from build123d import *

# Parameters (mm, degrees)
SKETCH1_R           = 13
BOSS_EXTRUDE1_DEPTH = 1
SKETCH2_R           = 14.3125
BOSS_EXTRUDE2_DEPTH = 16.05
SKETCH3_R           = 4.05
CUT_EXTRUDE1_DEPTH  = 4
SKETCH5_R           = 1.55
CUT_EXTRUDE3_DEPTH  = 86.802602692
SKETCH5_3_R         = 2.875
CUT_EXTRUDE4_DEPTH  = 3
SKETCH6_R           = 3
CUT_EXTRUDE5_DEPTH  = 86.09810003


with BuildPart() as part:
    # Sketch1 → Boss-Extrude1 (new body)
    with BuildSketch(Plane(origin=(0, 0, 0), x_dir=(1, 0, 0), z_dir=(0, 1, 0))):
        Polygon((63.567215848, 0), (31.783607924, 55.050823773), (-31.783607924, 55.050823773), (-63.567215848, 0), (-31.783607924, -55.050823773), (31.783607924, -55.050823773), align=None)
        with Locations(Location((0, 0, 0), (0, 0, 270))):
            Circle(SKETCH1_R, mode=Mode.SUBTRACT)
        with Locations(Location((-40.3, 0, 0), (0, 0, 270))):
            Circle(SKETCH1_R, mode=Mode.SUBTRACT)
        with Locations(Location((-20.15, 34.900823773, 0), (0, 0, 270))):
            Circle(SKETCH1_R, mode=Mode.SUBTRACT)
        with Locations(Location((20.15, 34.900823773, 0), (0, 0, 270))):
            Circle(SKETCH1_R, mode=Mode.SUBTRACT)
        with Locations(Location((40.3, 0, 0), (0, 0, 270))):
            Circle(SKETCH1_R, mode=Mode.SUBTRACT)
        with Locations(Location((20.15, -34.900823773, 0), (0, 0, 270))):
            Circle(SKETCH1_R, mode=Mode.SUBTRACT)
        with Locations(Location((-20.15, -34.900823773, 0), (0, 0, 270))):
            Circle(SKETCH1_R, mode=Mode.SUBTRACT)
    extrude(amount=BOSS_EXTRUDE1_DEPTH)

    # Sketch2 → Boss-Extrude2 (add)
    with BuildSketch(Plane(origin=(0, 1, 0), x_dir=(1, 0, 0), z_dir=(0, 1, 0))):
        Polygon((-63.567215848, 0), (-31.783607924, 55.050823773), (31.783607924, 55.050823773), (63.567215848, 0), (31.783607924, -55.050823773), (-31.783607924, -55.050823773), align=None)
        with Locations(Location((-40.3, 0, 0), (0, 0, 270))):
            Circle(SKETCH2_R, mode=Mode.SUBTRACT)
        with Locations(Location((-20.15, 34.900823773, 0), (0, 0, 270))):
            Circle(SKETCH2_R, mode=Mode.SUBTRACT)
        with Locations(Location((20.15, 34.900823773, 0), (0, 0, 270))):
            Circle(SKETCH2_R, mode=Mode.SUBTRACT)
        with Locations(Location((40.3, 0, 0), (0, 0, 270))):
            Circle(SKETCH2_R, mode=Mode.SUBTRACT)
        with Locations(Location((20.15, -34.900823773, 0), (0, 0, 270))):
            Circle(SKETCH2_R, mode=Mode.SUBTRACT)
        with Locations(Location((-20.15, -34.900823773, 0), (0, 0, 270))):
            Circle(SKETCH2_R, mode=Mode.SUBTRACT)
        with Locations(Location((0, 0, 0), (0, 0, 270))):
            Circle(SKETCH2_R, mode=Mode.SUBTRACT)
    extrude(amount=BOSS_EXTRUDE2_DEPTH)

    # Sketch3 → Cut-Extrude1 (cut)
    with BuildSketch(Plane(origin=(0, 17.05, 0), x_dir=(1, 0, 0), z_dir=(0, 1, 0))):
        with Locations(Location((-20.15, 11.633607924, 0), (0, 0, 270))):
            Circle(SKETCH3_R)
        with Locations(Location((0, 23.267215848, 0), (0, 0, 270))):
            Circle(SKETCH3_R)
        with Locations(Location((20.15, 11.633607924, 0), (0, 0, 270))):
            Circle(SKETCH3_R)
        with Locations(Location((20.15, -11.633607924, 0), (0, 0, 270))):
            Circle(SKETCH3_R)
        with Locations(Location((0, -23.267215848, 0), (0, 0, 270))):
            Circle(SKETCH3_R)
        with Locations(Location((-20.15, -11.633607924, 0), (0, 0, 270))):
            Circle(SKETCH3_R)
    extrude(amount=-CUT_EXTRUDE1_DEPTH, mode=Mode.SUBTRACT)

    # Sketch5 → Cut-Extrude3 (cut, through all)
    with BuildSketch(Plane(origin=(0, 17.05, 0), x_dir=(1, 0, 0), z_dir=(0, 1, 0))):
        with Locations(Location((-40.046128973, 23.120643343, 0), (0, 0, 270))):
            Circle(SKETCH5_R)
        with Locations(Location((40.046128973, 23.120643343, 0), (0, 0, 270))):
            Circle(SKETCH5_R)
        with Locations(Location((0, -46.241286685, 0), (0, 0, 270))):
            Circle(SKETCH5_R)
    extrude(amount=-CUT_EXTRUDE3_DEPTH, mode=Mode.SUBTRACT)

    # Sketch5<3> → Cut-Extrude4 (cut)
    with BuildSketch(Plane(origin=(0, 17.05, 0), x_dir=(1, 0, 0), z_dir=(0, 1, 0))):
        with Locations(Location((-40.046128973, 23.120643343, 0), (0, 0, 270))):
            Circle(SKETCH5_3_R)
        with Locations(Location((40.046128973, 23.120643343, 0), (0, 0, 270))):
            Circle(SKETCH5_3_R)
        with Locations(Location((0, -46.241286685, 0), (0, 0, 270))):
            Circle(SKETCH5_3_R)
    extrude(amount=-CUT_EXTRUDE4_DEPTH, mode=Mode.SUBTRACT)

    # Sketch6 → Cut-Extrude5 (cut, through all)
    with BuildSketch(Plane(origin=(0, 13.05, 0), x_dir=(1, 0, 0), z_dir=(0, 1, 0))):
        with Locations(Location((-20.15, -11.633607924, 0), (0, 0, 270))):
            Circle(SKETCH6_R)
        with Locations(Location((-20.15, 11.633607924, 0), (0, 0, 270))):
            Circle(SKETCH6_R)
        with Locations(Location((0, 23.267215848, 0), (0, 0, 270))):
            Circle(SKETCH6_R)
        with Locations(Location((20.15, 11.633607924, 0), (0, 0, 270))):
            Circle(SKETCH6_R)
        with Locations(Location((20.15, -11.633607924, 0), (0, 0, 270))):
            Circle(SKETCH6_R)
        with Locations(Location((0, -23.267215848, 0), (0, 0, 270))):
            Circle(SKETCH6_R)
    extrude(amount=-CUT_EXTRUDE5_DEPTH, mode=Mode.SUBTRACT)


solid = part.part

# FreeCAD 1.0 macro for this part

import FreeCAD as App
import Part
import Sketcher
Q = App.Units.Quantity


def add_polygon(sketch, points):
    """Adds a closed chain of lines whose ends are joined by coincident constraints."""
    first, n = sketch.GeometryCount, len(points)
    for a, b in zip(points, points[1:] + points[:1]):
        sketch.addGeometry(Part.LineSegment(App.Vector(*a, 0), App.Vector(*b, 0)), False)
    for i in range(n):
        sketch.addConstraint(Sketcher.Constraint("Coincident", first + i, 2, first + (i + 1) % n, 1))

doc = App.newDocument("Part")
body = doc.addObject("PartDesign::Body", "Body")

# Sketch on XZ plane
sketch1 = body.newObject("Sketcher::SketchObject", "Sketch")
sketch1.AttachmentSupport = (doc.getObject("XZ_Plane"), [""])
sketch1.MapMode = "FlatFace"
add_polygon(sketch1, [(64, 0), (32, -55), (-32, -55), (-64, 0), (-32, 55), (32, 55)])  # lines 0-5
sketch1.addGeometry(Part.Circle(App.Vector(-20, 35, 0), App.Vector(0, 0, 1), 13), False)  # 6
sketch1.addGeometry(Part.Circle(App.Vector(20, 35, 0), App.Vector(0, 0, 1), 13), False)  # 7
sketch1.addGeometry(Part.Circle(App.Vector(-40, 0, 0), App.Vector(0, 0, 1), 13), False)  # 8
sketch1.addGeometry(Part.Circle(App.Vector(-20, -35, 0), App.Vector(0, 0, 1), 13), False)  # 9
sketch1.addGeometry(Part.Circle(App.Vector(0, 0, 0), App.Vector(0, 0, 1), 13), False)  # 10
sketch1.addGeometry(Part.Circle(App.Vector(40, 0, 0), App.Vector(0, 0, 1), 13), False)  # 11
sketch1.addGeometry(Part.Circle(App.Vector(20, -35, 0), App.Vector(0, 0, 1), 13), False)  # 12
sketch1.addConstraint([
    Sketcher.Constraint("Horizontal", 1),
    Sketcher.Constraint("Horizontal", 4),
    Sketcher.Constraint("Coincident", 10, 3, -1, 1),
    Sketcher.Constraint("Equal", 6, 7),
    Sketcher.Constraint("Equal", 7, 8),
    Sketcher.Constraint("Equal", 8, 9),
    Sketcher.Constraint("Equal", 9, 10),
    Sketcher.Constraint("Equal", 10, 11),
    Sketcher.Constraint("Equal", 11, 12),
    Sketcher.Constraint("Symmetric", 7, 3, 9, 3, -1, 1),
    Sketcher.Constraint("Symmetric", 8, 3, 11, 3, -1, 1),
    Sketcher.Constraint("Symmetric", 6, 3, 12, 3, -1, 1),
    Sketcher.Constraint("Symmetric", 0, 2, 3, 2, -1, 1),
    Sketcher.Constraint("Symmetric", 2, 2, 5, 2, -1, 1),
    Sketcher.Constraint("Symmetric", 6, 3, 7, 3, -2),
    Sketcher.Constraint("PointOnObject", 8, 3, -1),
    Sketcher.Constraint("PointOnObject", 2, 2, -1),
    Sketcher.Constraint("Parallel", 2, 5),
    Sketcher.Constraint("Vertical", 1, 2, 3, 2),
    Sketcher.Constraint("Diameter", 6, Q("26 mm")),
    Sketcher.Constraint("Angle", 0, Q("-120 deg")),
    Sketcher.Constraint("DistanceX", 8, 3, -1, 1, Q("40.3 mm")),
    Sketcher.Constraint("DistanceX", 6, 3, 7, 3, Q("40.3 mm")),
    Sketcher.Constraint("DistanceY", 0, 2, 12, 3, Q("20.15 mm")),
    Sketcher.Constraint("DistanceX", 1, 2, 1, 1, Q("63.567216 mm")),
    Sketcher.Constraint("Distance", 0, Q("63.567216 mm")),
])
pad1 = body.newObject("PartDesign::Pad", "Pad")
pad1.Profile = sketch1
pad1.Length = 1
pad1.Reversed = True

# Sketch on XZ plane
sketch2 = body.newObject("Sketcher::SketchObject", "Sketch001")
sketch2.AttachmentSupport = (doc.getObject("XZ_Plane"), [""])
sketch2.MapMode = "FlatFace"
sketch2.AttachmentOffset = App.Placement(App.Vector(0, 0, -1), App.Rotation())
add_polygon(sketch2, [(-32, -55), (-64, 0), (-32, 55), (32, 55), (64, 0), (32, -55)])  # lines 0-5
sketch2.addGeometry(Part.Circle(App.Vector(20, 35, 0), App.Vector(0, 0, 1), 14), False)  # 6
sketch2.addGeometry(Part.Circle(App.Vector(40, 0, 0), App.Vector(0, 0, 1), 14), False)  # 7
sketch2.addGeometry(Part.Circle(App.Vector(-20, 35, 0), App.Vector(0, 0, 1), 14), False)  # 8
sketch2.addGeometry(Part.Circle(App.Vector(0, 0, 0), App.Vector(0, 0, 1), 14), False)  # 9
sketch2.addGeometry(Part.Circle(App.Vector(-40, 0, 0), App.Vector(0, 0, 1), 14), False)  # 10
sketch2.addGeometry(Part.Circle(App.Vector(20, -35, 0), App.Vector(0, 0, 1), 14), False)  # 11
sketch2.addGeometry(Part.Circle(App.Vector(-20, -35, 0), App.Vector(0, 0, 1), 14), False)  # 12
sketch2.addConstraint([
    Sketcher.Constraint("Horizontal", 2),
    Sketcher.Constraint("Horizontal", 5),
    Sketcher.Constraint("Coincident", 9, 3, -1, 1),
    Sketcher.Constraint("Equal", 6, 7),
    Sketcher.Constraint("Equal", 7, 8),
    Sketcher.Constraint("Equal", 8, 9),
    Sketcher.Constraint("Equal", 9, 10),
    Sketcher.Constraint("Equal", 10, 11),
    Sketcher.Constraint("Equal", 11, 12),
    Sketcher.Constraint("Symmetric", 7, 3, 10, 3, -1, 1),
    Sketcher.Constraint("Symmetric", 8, 3, 11, 3, -1, 1),
    Sketcher.Constraint("Symmetric", 6, 3, 12, 3, -1, 1),
    Sketcher.Constraint("Symmetric", 0, 2, 3, 2, -1, 1),
    Sketcher.Constraint("Symmetric", 1, 2, 4, 2, -1, 1),
    Sketcher.Constraint("Symmetric", 6, 3, 8, 3, -2),
    Sketcher.Constraint("PointOnObject", 7, 3, -1),
    Sketcher.Constraint("PointOnObject", 0, 2, -1),
    Sketcher.Constraint("Parallel", 0, 3),
    Sketcher.Constraint("Vertical", 2, 2, 4, 2),
    Sketcher.Constraint("Angle", 0, Q("120 deg")),
    Sketcher.Constraint("Diameter", 6, Q("28.625 mm")),
    Sketcher.Constraint("DistanceX", -1, 1, 7, 3, Q("40.3 mm")),
    Sketcher.Constraint("DistanceX", 8, 3, 6, 3, Q("40.3 mm")),
    Sketcher.Constraint("DistanceY", 8, 3, 1, 2, Q("20.15 mm")),
    Sketcher.Constraint("DistanceX", 2, 1, 2, 2, Q("63.567216 mm")),
    Sketcher.Constraint("Distance", 0, Q("63.567216 mm")),
])
pad2 = body.newObject("PartDesign::Pad", "Pad001")
pad2.Profile = sketch2
pad2.Length = 16.05
pad2.Reversed = True

# Sketch on XZ plane
sketch3 = body.newObject("Sketcher::SketchObject", "Sketch002")
sketch3.AttachmentSupport = (doc.getObject("XZ_Plane"), [""])
sketch3.MapMode = "FlatFace"
sketch3.AttachmentOffset = App.Placement(App.Vector(0, 0, -17.05), App.Rotation())
sketch3.addGeometry([
    Part.Circle(App.Vector(-20.1, -11.6, 0), App.Vector(0, 0, 1), 4),  # 0
    Part.Circle(App.Vector(0, -23.3, 0), App.Vector(0, 0, 1), 4),  # 1
    Part.Circle(App.Vector(20.1, -11.6, 0), App.Vector(0, 0, 1), 4),  # 2
    Part.Circle(App.Vector(20.1, 11.6, 0), App.Vector(0, 0, 1), 4),  # 3
    Part.Circle(App.Vector(0, 23.3, 0), App.Vector(0, 0, 1), 4),  # 4
    Part.Circle(App.Vector(-20.1, 11.6, 0), App.Vector(0, 0, 1), 4),  # 5
], False)
sketch3.addConstraint([
    Sketcher.Constraint("Equal", 0, 1),
    Sketcher.Constraint("Equal", 1, 2),
    Sketcher.Constraint("Equal", 2, 3),
    Sketcher.Constraint("Equal", 3, 4),
    Sketcher.Constraint("Equal", 4, 5),
    Sketcher.Constraint("Symmetric", 0, 3, 3, 3, -1, 1),
    Sketcher.Constraint("Symmetric", 1, 3, 4, 3, -1, 1),
    Sketcher.Constraint("Symmetric", 2, 3, 5, 3, -1, 1),
    Sketcher.Constraint("Symmetric", 0, 3, 2, 3, -2),
    Sketcher.Constraint("PointOnObject", 1, 3, -2),
    Sketcher.Constraint("Diameter", 0, Q("8.1 mm")),
    Sketcher.Constraint("DistanceX", 0, 3, 2, 3, Q("40.3 mm")),
    Sketcher.Constraint("DistanceY", 1, 3, 4, 3, Q("46.534432 mm")),
    Sketcher.Constraint("DistanceY", 0, 3, -1, 1, Q("11.633608 mm")),
])
pocket1 = body.newObject("PartDesign::Pocket", "Pocket")
pocket1.Profile = sketch3
pocket1.Length = 4
pocket1.Reversed = True

# Sketch on XZ plane
sketch4 = body.newObject("Sketcher::SketchObject", "Sketch003")
sketch4.AttachmentSupport = (doc.getObject("XZ_Plane"), [""])
sketch4.MapMode = "FlatFace"
sketch4.AttachmentOffset = App.Placement(App.Vector(0, 0, -17.05), App.Rotation())
sketch4.addGeometry([
    Part.Circle(App.Vector(-40, -23.1, 0), App.Vector(0, 0, 1), 1.6),
    Part.Circle(App.Vector(40, -23.1, 0), App.Vector(0, 0, 1), 1.6),
    Part.Circle(App.Vector(0, 46.2, 0), App.Vector(0, 0, 1), 1.6),
], False)
sketch4.addConstraint([
    Sketcher.Constraint("Equal", 0, 1),
    Sketcher.Constraint("Equal", 1, 2),
    Sketcher.Constraint("Symmetric", 0, 3, 1, 3, -2),
    Sketcher.Constraint("PointOnObject", 2, 3, -2),
    Sketcher.Constraint("Diameter", 0, Q("3.1 mm")),
    Sketcher.Constraint("DistanceX", 0, 3, -1, 1, Q("40.046129 mm")),
    Sketcher.Constraint("DistanceY", 0, 3, 2, 3, Q("69.36193 mm")),
    Sketcher.Constraint("DistanceY", 0, 3, -1, 1, Q("23.120643 mm")),
])
pocket2 = body.newObject("PartDesign::Pocket", "Pocket001")
pocket2.Profile = sketch4
pocket2.Type = "ThroughAll"
pocket2.Reversed = True

# Sketch on XZ plane
sketch5 = body.newObject("Sketcher::SketchObject", "Sketch004")
sketch5.AttachmentSupport = (doc.getObject("XZ_Plane"), [""])
sketch5.MapMode = "FlatFace"
sketch5.AttachmentOffset = App.Placement(App.Vector(0, 0, -17.05), App.Rotation())
sketch5.addGeometry([
    Part.Circle(App.Vector(-40, -23.1, 0), App.Vector(0, 0, 1), 2.9),
    Part.Circle(App.Vector(40, -23.1, 0), App.Vector(0, 0, 1), 2.9),
    Part.Circle(App.Vector(0, 46.2, 0), App.Vector(0, 0, 1), 2.9),
], False)
sketch5.addConstraint([
    Sketcher.Constraint("Equal", 0, 1),
    Sketcher.Constraint("Equal", 1, 2),
    Sketcher.Constraint("Symmetric", 0, 3, 1, 3, -2),
    Sketcher.Constraint("PointOnObject", 2, 3, -2),
    Sketcher.Constraint("Diameter", 0, Q("5.75 mm")),
    Sketcher.Constraint("DistanceX", 0, 3, -1, 1, Q("40.046129 mm")),
    Sketcher.Constraint("DistanceY", 0, 3, 2, 3, Q("69.36193 mm")),
    Sketcher.Constraint("DistanceY", 0, 3, -1, 1, Q("23.120643 mm")),
])
pocket3 = body.newObject("PartDesign::Pocket", "Pocket002")
pocket3.Profile = sketch5
pocket3.Length = 3
pocket3.Reversed = True

# Sketch on XZ plane
sketch6 = body.newObject("Sketcher::SketchObject", "Sketch005")
sketch6.AttachmentSupport = (doc.getObject("XZ_Plane"), [""])
sketch6.MapMode = "FlatFace"
sketch6.AttachmentOffset = App.Placement(App.Vector(0, 0, -13.05), App.Rotation())
sketch6.addGeometry([
    Part.Circle(App.Vector(-20.1, 11.6, 0), App.Vector(0, 0, 1), 3),  # 0
    Part.Circle(App.Vector(-20.1, -11.6, 0), App.Vector(0, 0, 1), 3),  # 1
    Part.Circle(App.Vector(0, -23.3, 0), App.Vector(0, 0, 1), 3),  # 2
    Part.Circle(App.Vector(20.1, -11.6, 0), App.Vector(0, 0, 1), 3),  # 3
    Part.Circle(App.Vector(20.1, 11.6, 0), App.Vector(0, 0, 1), 3),  # 4
    Part.Circle(App.Vector(0, 23.3, 0), App.Vector(0, 0, 1), 3),  # 5
], False)
sketch6.addConstraint([
    Sketcher.Constraint("Equal", 0, 1),
    Sketcher.Constraint("Equal", 1, 2),
    Sketcher.Constraint("Equal", 2, 3),
    Sketcher.Constraint("Equal", 3, 4),
    Sketcher.Constraint("Equal", 4, 5),
    Sketcher.Constraint("Symmetric", 0, 3, 3, 3, -1, 1),
    Sketcher.Constraint("Symmetric", 1, 3, 4, 3, -1, 1),
    Sketcher.Constraint("Symmetric", 2, 3, 5, 3, -1, 1),
    Sketcher.Constraint("Symmetric", 1, 3, 3, 3, -2),
    Sketcher.Constraint("PointOnObject", 2, 3, -2),
    Sketcher.Constraint("Diameter", 0, Q("6 mm")),
    Sketcher.Constraint("DistanceX", 1, 3, 3, 3, Q("40.3 mm")),
    Sketcher.Constraint("DistanceY", 2, 3, 5, 3, Q("46.534432 mm")),
    Sketcher.Constraint("DistanceY", -1, 1, 0, 3, Q("11.633608 mm")),
])
pocket4 = body.newObject("PartDesign::Pocket", "Pocket003")
pocket4.Profile = sketch6
pocket4.Type = "ThroughAll"
pocket4.Reversed = True

doc.recompute()
